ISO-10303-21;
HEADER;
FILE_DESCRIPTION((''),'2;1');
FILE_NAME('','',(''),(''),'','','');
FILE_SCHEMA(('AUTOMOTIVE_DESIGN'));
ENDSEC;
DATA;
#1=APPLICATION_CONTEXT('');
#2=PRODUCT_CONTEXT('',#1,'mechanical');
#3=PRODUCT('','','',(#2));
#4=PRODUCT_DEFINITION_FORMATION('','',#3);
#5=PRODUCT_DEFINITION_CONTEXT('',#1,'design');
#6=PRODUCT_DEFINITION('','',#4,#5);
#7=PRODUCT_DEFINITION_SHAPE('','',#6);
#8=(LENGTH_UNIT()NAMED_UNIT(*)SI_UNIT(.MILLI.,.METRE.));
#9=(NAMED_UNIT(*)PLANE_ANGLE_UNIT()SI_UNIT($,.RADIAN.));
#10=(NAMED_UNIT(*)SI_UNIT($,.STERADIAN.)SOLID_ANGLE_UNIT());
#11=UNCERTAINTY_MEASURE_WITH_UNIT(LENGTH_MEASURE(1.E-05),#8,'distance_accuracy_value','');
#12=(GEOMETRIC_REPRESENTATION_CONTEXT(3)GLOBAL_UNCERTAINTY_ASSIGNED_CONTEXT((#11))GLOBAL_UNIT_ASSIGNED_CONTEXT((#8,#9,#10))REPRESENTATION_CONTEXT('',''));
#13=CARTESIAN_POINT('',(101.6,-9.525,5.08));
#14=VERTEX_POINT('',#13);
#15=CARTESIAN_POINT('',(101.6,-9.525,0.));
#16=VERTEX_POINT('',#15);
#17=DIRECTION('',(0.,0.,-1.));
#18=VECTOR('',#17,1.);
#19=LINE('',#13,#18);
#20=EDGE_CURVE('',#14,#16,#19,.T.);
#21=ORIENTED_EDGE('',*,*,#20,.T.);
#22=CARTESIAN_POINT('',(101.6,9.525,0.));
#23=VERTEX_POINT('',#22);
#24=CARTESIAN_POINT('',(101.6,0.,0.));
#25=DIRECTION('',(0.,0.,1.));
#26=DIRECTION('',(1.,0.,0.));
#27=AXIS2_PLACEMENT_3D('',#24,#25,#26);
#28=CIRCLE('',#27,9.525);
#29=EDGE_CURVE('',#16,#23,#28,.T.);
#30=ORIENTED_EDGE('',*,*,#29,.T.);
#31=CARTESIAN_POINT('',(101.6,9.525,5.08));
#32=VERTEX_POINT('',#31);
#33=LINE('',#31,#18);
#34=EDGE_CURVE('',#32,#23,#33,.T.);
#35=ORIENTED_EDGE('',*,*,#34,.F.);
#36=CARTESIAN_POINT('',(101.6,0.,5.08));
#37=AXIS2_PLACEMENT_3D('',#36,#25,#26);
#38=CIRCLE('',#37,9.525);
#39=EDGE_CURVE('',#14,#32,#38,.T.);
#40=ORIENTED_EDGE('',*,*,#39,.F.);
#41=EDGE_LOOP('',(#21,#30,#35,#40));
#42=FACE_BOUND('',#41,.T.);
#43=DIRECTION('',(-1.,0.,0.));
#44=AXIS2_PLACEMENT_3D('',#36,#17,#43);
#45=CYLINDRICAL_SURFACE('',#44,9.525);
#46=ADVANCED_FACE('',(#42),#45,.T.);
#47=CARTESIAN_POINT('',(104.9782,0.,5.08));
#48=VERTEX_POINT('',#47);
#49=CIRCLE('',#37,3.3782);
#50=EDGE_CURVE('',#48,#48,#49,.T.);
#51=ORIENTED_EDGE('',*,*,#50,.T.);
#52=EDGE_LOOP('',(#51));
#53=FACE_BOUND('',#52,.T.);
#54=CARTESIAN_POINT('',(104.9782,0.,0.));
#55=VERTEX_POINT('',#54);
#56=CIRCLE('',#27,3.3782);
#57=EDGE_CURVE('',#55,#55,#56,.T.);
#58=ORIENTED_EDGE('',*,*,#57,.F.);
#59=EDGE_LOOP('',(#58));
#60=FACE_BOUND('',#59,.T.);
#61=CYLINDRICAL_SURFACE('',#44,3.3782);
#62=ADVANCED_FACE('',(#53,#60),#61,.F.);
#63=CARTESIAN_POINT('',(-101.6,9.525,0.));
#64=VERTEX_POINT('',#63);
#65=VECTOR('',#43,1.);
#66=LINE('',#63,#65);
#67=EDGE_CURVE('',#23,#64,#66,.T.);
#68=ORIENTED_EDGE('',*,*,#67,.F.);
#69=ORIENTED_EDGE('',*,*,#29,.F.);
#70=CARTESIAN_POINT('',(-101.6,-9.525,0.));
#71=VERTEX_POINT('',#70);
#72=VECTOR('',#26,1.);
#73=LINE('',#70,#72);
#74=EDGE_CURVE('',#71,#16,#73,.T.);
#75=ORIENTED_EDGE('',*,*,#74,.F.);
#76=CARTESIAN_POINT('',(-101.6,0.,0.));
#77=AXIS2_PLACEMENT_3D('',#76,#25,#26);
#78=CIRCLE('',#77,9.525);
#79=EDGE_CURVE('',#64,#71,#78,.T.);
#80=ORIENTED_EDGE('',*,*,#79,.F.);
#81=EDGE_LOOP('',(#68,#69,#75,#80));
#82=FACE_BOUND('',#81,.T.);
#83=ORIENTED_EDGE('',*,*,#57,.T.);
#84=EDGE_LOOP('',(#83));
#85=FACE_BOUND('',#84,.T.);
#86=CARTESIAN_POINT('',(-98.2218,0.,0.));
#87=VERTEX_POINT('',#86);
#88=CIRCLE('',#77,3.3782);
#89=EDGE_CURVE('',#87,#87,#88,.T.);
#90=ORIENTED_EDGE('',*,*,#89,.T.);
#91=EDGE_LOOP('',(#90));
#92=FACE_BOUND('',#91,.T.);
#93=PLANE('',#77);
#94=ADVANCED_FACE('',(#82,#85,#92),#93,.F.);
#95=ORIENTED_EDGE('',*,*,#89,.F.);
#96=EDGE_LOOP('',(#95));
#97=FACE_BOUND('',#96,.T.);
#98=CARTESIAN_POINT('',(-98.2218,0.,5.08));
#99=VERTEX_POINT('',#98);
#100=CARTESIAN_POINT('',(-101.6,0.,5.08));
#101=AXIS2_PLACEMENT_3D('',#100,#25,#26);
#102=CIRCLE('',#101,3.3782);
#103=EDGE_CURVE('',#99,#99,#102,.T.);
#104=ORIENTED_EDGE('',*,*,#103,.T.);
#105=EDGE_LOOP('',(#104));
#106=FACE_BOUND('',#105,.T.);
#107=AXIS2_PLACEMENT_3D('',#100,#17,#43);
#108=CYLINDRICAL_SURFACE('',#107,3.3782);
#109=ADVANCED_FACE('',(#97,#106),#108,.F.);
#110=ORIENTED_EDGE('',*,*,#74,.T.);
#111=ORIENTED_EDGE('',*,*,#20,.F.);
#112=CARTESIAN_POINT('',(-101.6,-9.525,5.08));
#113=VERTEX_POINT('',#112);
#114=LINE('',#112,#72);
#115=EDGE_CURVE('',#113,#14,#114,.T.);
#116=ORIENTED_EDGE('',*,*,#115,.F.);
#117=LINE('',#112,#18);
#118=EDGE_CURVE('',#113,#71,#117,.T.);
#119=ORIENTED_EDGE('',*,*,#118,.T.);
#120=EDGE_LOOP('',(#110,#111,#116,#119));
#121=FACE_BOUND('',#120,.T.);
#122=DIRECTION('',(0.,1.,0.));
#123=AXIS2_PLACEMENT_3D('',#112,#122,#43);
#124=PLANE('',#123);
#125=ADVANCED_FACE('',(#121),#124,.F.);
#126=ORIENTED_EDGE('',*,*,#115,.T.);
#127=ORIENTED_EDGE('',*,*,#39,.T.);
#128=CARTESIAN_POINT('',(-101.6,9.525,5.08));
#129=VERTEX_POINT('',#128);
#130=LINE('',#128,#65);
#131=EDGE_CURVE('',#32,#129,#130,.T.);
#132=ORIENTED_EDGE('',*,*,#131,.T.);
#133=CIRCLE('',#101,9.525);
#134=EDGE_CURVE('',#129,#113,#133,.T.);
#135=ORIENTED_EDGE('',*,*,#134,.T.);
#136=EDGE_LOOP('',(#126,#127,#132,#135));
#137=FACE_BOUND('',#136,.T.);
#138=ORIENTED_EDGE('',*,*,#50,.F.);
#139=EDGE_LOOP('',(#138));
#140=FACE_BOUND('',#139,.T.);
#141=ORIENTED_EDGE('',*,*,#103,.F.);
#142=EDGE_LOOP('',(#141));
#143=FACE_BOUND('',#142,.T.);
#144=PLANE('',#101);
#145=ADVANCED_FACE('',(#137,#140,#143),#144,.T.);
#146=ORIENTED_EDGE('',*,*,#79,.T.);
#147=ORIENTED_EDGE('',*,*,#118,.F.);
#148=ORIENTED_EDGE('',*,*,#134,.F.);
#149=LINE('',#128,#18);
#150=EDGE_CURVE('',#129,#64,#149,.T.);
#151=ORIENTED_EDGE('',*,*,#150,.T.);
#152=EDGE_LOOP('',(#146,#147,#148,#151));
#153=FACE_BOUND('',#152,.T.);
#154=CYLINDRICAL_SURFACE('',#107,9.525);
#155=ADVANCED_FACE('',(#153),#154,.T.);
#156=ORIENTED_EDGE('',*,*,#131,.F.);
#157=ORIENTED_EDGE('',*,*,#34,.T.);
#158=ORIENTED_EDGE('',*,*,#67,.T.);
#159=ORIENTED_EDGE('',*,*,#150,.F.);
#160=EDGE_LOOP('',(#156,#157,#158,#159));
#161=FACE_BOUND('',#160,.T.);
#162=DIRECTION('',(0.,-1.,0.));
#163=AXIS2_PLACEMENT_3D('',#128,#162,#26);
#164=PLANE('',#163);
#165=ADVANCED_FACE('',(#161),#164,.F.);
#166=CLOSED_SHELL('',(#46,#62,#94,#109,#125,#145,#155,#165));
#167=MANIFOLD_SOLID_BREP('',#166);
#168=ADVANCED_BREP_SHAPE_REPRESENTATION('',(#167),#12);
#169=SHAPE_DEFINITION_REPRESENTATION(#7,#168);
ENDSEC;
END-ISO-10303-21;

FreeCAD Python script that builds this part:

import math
import FreeCAD as App
import Part
import Sketcher
from FreeCAD import Vector
Q = App.Units.Quantity

doc = App.newDocument("Part")
body = doc.addObject("PartDesign::Body", "Body")

sketch1 = body.newObject("Sketcher::SketchObject", "Sketch")
sketch1.AttachmentSupport = (doc.getObject("XY_Plane"), [""])
sketch1.MapMode = "FlatFace"
sketch1.addGeometry(Part.LineSegment(Vector(101.6, 9.5, 0), Vector(-101.6, 9.5, 0)), False)
sketch1.addGeometry(Part.ArcOfCircle(Part.Circle(Vector(-101.6, 0, 0), Vector(0, 0, 1), 9.5), math.radians(90), math.radians(270)), False)
sketch1.addGeometry(Part.LineSegment(Vector(-101.6, -9.5, 0), Vector(101.6, -9.5, 0)), False)
sketch1.addGeometry(Part.ArcOfCircle(Part.Circle(Vector(101.6, 0, 0), Vector(0, 0, 1), 9.5), math.radians(-90), math.radians(90)), False)
sketch1.addGeometry(Part.Circle(Vector(101.6, 0, 0), Vector(0, 0, 1), 3.4), False)
sketch1.addGeometry(Part.Circle(Vector(-101.6, 0, 0), Vector(0, 0, 1), 3.4), False)
sketch1.addConstraint(Sketcher.Constraint("Tangent", 0, 2, 1, 1))
sketch1.addConstraint(Sketcher.Constraint("Tangent", 1, 2, 2, 1))
sketch1.addConstraint(Sketcher.Constraint("Tangent", 2, 2, 3, 1))
sketch1.addConstraint(Sketcher.Constraint("Tangent", 3, 2, 0, 1))
sketch1.addConstraint(Sketcher.Constraint("Horizontal", 0))
sketch1.addConstraint(Sketcher.Constraint("Horizontal", 2))
sketch1.addConstraint(Sketcher.Constraint("Coincident", 4, 3, 3, 3))
sketch1.addConstraint(Sketcher.Constraint("Coincident", 5, 3, 1, 3))
sketch1.addConstraint(Sketcher.Constraint("Equal", 4, 5))
sketch1.addConstraint(Sketcher.Constraint("Symmetric", 1, 3, 3, 3, -1, 1))
sketch1.addConstraint(Sketcher.Constraint("DistanceX", 0, 2, 0, 1, Q("8 in")))
sketch1.addConstraint(Sketcher.Constraint("Diameter", 4, Q("0.266 in")))
sketch1.addConstraint(Sketcher.Constraint("Radius", 1, Q("0.375 in")))
pad1 = body.newObject("PartDesign::Pad", "Pad")
pad1.Profile = sketch1
pad1.Length = Q("0.2 in")

doc.recompute()
